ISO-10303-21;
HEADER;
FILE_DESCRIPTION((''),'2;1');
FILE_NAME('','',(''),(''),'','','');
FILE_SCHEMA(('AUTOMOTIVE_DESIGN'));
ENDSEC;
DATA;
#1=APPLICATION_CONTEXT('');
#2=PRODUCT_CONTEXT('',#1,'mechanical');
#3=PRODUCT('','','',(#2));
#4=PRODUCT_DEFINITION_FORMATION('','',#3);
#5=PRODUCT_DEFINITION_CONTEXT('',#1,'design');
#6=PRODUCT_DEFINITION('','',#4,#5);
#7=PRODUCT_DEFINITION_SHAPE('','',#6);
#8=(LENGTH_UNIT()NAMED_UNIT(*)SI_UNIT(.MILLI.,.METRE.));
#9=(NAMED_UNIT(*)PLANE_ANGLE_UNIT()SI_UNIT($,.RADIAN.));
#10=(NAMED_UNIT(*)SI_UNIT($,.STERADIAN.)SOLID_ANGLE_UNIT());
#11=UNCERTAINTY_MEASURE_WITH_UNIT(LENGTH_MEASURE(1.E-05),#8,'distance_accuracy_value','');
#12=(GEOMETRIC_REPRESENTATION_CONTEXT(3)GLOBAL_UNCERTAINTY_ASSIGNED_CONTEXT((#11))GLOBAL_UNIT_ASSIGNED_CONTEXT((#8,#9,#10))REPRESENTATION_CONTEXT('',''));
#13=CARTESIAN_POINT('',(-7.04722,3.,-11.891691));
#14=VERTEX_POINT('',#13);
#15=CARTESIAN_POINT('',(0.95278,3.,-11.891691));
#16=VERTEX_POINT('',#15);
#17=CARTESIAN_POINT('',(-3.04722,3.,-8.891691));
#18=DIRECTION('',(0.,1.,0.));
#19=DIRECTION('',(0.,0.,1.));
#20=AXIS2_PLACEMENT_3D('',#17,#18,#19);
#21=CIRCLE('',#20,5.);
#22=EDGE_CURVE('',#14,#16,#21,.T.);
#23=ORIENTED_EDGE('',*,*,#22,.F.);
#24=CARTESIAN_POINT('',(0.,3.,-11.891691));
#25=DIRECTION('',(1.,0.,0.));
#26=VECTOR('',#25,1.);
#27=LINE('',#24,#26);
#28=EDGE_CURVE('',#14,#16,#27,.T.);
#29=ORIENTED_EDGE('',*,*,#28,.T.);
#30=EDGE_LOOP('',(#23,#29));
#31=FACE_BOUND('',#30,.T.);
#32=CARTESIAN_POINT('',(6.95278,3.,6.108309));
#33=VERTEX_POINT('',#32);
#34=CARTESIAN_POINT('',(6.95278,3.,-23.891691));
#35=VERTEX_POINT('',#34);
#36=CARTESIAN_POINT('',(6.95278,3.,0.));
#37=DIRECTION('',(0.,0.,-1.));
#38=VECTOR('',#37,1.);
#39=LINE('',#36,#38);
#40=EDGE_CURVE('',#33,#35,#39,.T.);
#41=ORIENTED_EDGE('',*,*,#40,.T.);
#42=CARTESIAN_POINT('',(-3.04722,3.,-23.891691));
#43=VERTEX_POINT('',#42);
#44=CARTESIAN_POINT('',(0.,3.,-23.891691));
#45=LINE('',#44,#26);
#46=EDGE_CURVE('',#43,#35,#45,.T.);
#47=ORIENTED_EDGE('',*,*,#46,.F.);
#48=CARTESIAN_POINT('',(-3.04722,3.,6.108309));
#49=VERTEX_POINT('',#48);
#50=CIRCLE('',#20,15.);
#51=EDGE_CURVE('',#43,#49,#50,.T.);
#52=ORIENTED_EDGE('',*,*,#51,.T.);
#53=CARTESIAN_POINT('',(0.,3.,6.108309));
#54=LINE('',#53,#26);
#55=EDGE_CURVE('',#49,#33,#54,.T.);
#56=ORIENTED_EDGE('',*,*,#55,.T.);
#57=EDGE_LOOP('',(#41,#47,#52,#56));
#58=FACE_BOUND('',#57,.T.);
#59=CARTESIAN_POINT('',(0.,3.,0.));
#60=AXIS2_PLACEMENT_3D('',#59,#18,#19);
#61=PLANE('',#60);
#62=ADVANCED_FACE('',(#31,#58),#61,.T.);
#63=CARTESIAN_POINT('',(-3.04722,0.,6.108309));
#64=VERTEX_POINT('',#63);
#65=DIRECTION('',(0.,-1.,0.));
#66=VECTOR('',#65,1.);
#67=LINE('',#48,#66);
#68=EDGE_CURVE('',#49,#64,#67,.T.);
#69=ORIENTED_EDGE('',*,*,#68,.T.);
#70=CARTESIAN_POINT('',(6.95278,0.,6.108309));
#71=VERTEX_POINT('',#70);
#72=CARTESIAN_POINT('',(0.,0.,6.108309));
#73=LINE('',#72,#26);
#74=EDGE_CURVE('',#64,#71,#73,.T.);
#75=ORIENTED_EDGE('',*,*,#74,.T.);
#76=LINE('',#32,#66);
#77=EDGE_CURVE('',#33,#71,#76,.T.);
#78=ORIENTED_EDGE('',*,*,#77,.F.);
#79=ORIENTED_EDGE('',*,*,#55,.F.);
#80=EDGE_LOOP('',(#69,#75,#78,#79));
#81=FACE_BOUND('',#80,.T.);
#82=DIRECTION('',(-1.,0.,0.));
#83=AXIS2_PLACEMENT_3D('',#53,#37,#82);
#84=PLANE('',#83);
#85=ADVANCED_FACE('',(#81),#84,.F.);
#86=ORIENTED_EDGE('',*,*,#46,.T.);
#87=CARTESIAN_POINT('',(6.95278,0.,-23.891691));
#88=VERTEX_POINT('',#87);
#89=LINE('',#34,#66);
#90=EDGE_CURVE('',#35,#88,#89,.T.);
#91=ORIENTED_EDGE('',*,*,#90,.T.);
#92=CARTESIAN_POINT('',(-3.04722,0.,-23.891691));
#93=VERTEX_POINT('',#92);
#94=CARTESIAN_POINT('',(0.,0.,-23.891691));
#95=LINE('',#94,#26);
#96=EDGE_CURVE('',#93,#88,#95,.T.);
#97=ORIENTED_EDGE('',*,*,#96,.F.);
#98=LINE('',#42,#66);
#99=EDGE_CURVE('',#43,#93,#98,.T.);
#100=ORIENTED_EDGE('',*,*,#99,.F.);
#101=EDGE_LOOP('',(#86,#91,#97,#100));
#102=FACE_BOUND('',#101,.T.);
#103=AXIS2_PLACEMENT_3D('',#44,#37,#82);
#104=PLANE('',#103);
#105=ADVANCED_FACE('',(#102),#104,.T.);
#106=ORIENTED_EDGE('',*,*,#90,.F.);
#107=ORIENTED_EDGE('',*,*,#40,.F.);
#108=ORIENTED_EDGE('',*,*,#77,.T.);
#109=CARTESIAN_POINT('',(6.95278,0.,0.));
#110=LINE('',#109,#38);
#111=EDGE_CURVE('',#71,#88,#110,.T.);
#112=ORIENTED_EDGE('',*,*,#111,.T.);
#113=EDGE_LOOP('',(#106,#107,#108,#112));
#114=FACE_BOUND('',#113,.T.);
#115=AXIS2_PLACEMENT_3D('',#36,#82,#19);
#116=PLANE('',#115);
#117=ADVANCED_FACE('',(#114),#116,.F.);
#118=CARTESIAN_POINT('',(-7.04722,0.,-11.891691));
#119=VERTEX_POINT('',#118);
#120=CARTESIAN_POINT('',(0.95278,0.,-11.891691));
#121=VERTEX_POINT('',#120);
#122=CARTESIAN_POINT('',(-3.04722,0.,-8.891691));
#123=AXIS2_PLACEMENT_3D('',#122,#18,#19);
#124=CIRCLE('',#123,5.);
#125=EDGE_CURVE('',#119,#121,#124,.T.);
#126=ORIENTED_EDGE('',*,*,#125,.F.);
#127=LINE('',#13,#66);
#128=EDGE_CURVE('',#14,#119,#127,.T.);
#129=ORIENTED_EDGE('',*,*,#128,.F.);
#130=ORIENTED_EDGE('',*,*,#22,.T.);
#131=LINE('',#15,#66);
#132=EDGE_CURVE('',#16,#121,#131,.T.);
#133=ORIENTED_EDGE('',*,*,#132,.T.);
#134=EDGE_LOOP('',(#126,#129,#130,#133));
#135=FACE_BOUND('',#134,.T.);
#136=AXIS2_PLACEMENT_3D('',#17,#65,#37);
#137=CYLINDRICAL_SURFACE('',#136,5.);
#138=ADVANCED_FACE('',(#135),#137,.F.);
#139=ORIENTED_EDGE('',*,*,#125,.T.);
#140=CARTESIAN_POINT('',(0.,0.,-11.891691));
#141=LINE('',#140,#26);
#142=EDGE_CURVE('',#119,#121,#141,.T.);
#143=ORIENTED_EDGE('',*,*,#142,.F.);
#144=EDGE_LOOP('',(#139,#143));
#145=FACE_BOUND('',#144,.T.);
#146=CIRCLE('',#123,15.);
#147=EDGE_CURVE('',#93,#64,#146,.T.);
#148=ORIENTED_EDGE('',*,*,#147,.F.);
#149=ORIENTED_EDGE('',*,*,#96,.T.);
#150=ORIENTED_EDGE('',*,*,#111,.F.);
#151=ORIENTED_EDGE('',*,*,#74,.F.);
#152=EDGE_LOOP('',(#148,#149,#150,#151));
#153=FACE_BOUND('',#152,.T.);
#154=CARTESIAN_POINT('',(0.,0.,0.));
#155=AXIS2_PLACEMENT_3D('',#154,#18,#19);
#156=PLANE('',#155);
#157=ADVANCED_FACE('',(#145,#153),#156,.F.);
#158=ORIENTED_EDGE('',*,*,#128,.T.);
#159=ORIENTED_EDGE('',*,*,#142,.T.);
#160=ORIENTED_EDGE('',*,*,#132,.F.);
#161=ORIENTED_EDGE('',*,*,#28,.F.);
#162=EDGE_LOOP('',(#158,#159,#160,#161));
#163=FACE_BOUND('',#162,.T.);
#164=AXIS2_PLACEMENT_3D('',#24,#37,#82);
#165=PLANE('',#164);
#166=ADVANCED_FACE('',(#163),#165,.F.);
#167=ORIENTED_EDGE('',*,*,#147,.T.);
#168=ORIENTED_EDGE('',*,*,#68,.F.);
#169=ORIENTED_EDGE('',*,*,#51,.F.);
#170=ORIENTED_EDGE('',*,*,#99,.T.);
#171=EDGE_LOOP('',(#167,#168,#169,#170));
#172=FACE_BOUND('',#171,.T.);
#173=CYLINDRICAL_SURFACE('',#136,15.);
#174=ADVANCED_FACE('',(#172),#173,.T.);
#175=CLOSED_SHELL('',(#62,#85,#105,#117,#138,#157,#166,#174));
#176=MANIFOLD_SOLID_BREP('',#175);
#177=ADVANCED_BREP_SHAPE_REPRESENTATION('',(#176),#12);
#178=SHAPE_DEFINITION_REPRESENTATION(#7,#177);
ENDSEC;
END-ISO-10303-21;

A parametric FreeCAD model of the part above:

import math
import FreeCAD as App
import Part
import Sketcher
from FreeCAD import Vector
Q = App.Units.Quantity

doc = App.newDocument("Part")
body = doc.addObject("PartDesign::Body", "Body")

# Sketch on XZ plane
sketch1 = body.newObject("Sketcher::SketchObject", "Sketch")
sketch1.AttachmentSupport = (doc.getObject("XZ_Plane"), [""])
sketch1.MapMode = "FlatFace"
sketch1.addGeometry([
    Part.ArcOfCircle(Part.Circle(Vector(-3.04722, -8.891691, 0), Vector(0, 0, 1), 15), math.radians(90), math.radians(270)),  # 0
    Part.LineSegment(Vector(-3.04722, 6.108309, 0), Vector(6.95278, 6.108309, 0)),  # 1
    Part.LineSegment(Vector(6.95278, 6.108309, 0), Vector(6.95278, -23.891691, 0)),  # 2
    Part.LineSegment(Vector(6.95278, -23.891691, 0), Vector(-3.04722, -23.891691, 0)),  # 3
    Part.ArcOfCircle(Part.Circle(Vector(-3.04722, -8.891691, 0), Vector(0, 0, 1), 5), math.radians(-36.869898), math.radians(216.869898)),  # 4
    Part.LineSegment(Vector(-7.04722, -11.891691, 0), Vector(0.95278, -11.891691, 0)),  # 5
], False)
sketch1.addConstraint([
    Sketcher.Constraint("Tangent", 0, 1, 1, 1),
    Sketcher.Constraint("Coincident", 1, 2, 2, 1),
    Sketcher.Constraint("Coincident", 2, 2, 3, 1),
    Sketcher.Constraint("Tangent", 3, 2, 0, 2),
    Sketcher.Constraint("Coincident", 4, 1, 5, 2),
    Sketcher.Constraint("Coincident", 5, 1, 4, 2),
    Sketcher.Constraint("Horizontal", 1),
    Sketcher.Constraint("Vertical", 2),
    Sketcher.Constraint("Horizontal", 3),
    Sketcher.Constraint("Horizontal", 5),
    Sketcher.Constraint("Coincident", 4, 3, 0, 3),
    Sketcher.Constraint("Radius", 0, Q("15 mm")),
    Sketcher.Constraint("Radius", 4, Q("5 mm")),
    Sketcher.Constraint("DistanceX", 1, 1, 1, 2, Q("10 mm")),
    Sketcher.Constraint("DistanceX", 5, 1, 5, 2, Q("8 mm")),
    Sketcher.Constraint("DistanceX", 0, 3, -1, 1, Q("3.04722 mm")),
    Sketcher.Constraint("DistanceY", 0, 3, -1, 1, Q("8.891691 mm")),
])
pad1 = body.newObject("PartDesign::Pad", "Pad")
pad1.Profile = sketch1
pad1.Length = 3
pad1.Reversed = True

doc.recompute()
